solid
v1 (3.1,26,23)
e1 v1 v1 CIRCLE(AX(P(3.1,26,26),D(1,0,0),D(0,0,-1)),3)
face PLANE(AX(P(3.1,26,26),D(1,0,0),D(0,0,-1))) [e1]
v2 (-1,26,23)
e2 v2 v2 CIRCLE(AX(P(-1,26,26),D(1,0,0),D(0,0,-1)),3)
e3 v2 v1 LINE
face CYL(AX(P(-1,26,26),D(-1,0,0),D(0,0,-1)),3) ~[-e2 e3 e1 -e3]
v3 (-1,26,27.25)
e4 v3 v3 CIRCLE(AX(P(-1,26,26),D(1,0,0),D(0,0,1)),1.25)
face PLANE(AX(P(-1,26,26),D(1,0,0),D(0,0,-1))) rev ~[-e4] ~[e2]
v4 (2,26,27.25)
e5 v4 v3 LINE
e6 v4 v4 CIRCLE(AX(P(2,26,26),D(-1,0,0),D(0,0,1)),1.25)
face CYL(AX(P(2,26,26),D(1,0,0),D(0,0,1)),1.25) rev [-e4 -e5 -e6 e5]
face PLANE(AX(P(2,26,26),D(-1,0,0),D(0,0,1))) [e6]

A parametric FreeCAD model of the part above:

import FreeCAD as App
import Part
import Sketcher

doc = App.newDocument("Part")
body = doc.addObject("PartDesign::Body", "Body")

# Sketch on YZ plane
sketch1 = body.newObject("Sketcher::SketchObject", "Sketch")
sketch1.AttachmentSupport = (doc.getObject("YZ_Plane"), [""])
sketch1.MapMode = "FlatFace"
sketch1.AttachmentOffset = App.Placement(App.Vector(0, 0, 2), App.Rotation())
sketch1.addGeometry(Part.Circle(App.Vector(26, 26, 0), App.Vector(0, 0, 1), 1.2), False)
sketch1.addConstraint([
    Sketcher.Constraint("Diameter", 0, 2.5),
    Sketcher.Constraint("DistanceX", -1, 1, 0, 3, 26.0),
    Sketcher.Constraint("DistanceY", -1, 1, 0, 3, 26.0),
])
pad1 = body.newObject("PartDesign::Pad", "Pad")
pad1.Profile = sketch1
pad1.Length = 5
pad1.Reversed = True
body2 = doc.addObject("PartDesign::Body", "Body001")

# Sketch on YZ plane
sketch2 = body2.newObject("Sketcher::SketchObject", "Sketch001")
sketch2.AttachmentSupport = (doc.getObject("YZ_Plane001"), [""])
sketch2.MapMode = "FlatFace"
sketch2.AttachmentOffset = App.Placement(App.Vector(0, 0, -1), App.Rotation())
sketch2.addGeometry(Part.Circle(App.Vector(26, 26, 0), App.Vector(0, 0, 1), 3), False)
sketch2.addConstraint([
    Sketcher.Constraint("Diameter", 0, 6.0),
    Sketcher.Constraint("DistanceX", -1, 1, 0, 3, 26.0),
    Sketcher.Constraint("DistanceY", -1, 1, 0, 3, 26.0),
])
pad2 = body2.newObject("PartDesign::Pad", "Pad001")
pad2.Profile = sketch2
pad2.Length = 4.1
doc.recompute()

boolean = body2.newObject("PartDesign::Boolean", "Boolean")
boolean.Type = "Cut"
boolean.addObjects([body])

doc.recompute()
